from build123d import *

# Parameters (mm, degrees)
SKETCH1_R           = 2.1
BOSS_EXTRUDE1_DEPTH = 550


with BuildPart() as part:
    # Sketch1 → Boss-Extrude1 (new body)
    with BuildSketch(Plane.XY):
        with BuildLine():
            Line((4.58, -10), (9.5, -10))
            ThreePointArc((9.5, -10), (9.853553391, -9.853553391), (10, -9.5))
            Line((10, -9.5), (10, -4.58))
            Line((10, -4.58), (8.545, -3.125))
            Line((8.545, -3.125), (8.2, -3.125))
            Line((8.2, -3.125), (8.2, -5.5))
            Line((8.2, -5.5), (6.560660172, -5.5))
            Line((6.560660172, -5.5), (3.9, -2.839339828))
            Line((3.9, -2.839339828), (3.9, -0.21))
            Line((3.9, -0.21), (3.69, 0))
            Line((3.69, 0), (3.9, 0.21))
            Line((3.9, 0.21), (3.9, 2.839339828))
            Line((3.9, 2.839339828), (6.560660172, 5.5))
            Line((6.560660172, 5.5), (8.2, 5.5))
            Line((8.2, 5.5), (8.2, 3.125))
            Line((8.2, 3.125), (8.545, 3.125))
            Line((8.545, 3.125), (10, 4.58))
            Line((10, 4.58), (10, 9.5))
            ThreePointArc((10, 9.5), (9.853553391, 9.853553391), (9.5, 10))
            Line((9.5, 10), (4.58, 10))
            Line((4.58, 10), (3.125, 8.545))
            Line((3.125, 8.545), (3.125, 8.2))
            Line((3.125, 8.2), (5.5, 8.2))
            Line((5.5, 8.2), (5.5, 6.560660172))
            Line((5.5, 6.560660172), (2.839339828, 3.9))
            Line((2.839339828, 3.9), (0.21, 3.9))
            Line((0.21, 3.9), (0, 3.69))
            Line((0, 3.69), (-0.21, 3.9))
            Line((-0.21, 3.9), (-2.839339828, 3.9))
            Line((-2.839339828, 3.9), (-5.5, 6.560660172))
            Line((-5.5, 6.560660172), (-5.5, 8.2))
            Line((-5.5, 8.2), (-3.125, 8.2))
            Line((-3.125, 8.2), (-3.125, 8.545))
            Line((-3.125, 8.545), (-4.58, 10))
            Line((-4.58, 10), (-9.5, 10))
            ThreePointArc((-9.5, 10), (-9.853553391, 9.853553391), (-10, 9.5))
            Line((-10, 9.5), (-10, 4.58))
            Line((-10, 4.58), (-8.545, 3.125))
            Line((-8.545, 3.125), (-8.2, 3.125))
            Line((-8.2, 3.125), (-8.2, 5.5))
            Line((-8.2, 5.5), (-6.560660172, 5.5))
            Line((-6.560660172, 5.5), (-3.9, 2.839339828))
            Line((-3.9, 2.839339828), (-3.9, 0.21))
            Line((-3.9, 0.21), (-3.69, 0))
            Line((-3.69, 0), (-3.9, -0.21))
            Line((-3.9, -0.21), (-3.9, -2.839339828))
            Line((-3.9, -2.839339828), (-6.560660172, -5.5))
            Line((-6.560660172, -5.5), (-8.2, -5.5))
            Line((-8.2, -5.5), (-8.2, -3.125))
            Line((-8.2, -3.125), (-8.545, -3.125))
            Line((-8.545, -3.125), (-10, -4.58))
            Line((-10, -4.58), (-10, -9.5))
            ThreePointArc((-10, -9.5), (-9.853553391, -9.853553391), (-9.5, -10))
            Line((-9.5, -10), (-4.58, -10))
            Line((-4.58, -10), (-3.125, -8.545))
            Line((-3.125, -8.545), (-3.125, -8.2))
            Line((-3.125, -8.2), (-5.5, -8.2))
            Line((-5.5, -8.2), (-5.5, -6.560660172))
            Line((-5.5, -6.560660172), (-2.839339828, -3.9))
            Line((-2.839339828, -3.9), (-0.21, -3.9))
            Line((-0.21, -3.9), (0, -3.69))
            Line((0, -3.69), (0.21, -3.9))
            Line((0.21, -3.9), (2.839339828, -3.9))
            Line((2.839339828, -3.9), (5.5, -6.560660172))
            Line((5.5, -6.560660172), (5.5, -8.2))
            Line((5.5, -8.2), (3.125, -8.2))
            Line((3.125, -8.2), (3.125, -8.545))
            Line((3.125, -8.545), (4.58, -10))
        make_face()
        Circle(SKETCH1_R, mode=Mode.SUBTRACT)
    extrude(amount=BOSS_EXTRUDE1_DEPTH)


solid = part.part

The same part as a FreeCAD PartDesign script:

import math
import FreeCAD as App
import Part
import Sketcher

doc = App.newDocument("Part")
params = doc.addObject("Spreadsheet::Sheet", "Params")
for row, (alias, value) in enumerate([
    ("sketch1_diameter", "4.2 mm"),
    ("sketch1_radius", "0.5 mm"),
    ("sketch1_width", "4.92 mm"),
    ("pad1_length", "550 mm"),
], start=1):
    params.set(f"A{row}", alias)
    params.set(f"B{row}", "=" + value)
    params.setAlias(f"B{row}", alias)

body = doc.addObject("PartDesign::Body", "Body")

# Sketch on XY plane
sketch1 = doc.addObject("Sketcher::SketchObject", "Sketch")
body.addObject(sketch1)
sketch1.AttachmentSupport = (doc.XY_Plane, [""])
sketch1.MapMode = "FlatFace"
sketch1.addGeometry([
    Part.LineSegment(App.Vector(4.58, -10, 0), App.Vector(9.5, -10, 0)),  # 0
    Part.ArcOfCircle(Part.Circle(App.Vector(9.5, -9.5, 0), App.Vector(0, 0, 1), 0.5), math.radians(-90), math.radians(0)),  # 1
    Part.LineSegment(App.Vector(10, -9.5, 0), App.Vector(10, -4.58, 0)),  # 2
    Part.LineSegment(App.Vector(10, -4.58, 0), App.Vector(8.545, -3.125, 0)),  # 3
    Part.LineSegment(App.Vector(8.545, -3.125, 0), App.Vector(8.2, -3.125, 0)),  # 4
    Part.LineSegment(App.Vector(8.2, -3.125, 0), App.Vector(8.2, -5.5, 0)),  # 5
    Part.LineSegment(App.Vector(8.2, -5.5, 0), App.Vector(6.56066, -5.5, 0)),  # 6
    Part.LineSegment(App.Vector(6.56066, -5.5, 0), App.Vector(3.9, -2.83934, 0)),  # 7
    Part.LineSegment(App.Vector(3.9, -2.83934, 0), App.Vector(3.9, -0.21, 0)),  # 8
    Part.LineSegment(App.Vector(3.9, -0.21, 0), App.Vector(3.69, 0, 0)),  # 9
    Part.LineSegment(App.Vector(3.69, 0, 0), App.Vector(3.9, 0.21, 0)),  # 10
    Part.LineSegment(App.Vector(3.9, 0.21, 0), App.Vector(3.9, 2.83934, 0)),  # 11
    Part.LineSegment(App.Vector(3.9, 2.83934, 0), App.Vector(6.56066, 5.5, 0)),  # 12
    Part.LineSegment(App.Vector(6.56066, 5.5, 0), App.Vector(8.2, 5.5, 0)),  # 13
    Part.LineSegment(App.Vector(8.2, 5.5, 0), App.Vector(8.2, 3.125, 0)),  # 14
    Part.LineSegment(App.Vector(8.2, 3.125, 0), App.Vector(8.545, 3.125, 0)),  # 15
    Part.LineSegment(App.Vector(8.545, 3.125, 0), App.Vector(10, 4.58, 0)),  # 16
    Part.LineSegment(App.Vector(10, 4.58, 0), App.Vector(10, 9.5, 0)),  # 17
    Part.ArcOfCircle(Part.Circle(App.Vector(9.5, 9.5, 0), App.Vector(0, 0, 1), 0.5), math.radians(0), math.radians(90)),  # 18
    Part.LineSegment(App.Vector(9.5, 10, 0), App.Vector(4.58, 10, 0)),  # 19
    Part.LineSegment(App.Vector(4.58, 10, 0), App.Vector(3.125, 8.545, 0)),  # 20
    Part.LineSegment(App.Vector(3.125, 8.545, 0), App.Vector(3.125, 8.2, 0)),  # 21
    Part.LineSegment(App.Vector(3.125, 8.2, 0), App.Vector(5.5, 8.2, 0)),  # 22
    Part.LineSegment(App.Vector(5.5, 8.2, 0), App.Vector(5.5, 6.56066, 0)),  # 23
    Part.LineSegment(App.Vector(5.5, 6.56066, 0), App.Vector(2.83934, 3.9, 0)),  # 24
    Part.LineSegment(App.Vector(2.83934, 3.9, 0), App.Vector(0.21, 3.9, 0)),  # 25
    Part.LineSegment(App.Vector(0.21, 3.9, 0), App.Vector(0, 3.69, 0)),  # 26
    Part.LineSegment(App.Vector(0, 3.69, 0), App.Vector(-0.21, 3.9, 0)),  # 27
    Part.LineSegment(App.Vector(-0.21, 3.9, 0), App.Vector(-2.83934, 3.9, 0)),  # 28
    Part.LineSegment(App.Vector(-2.83934, 3.9, 0), App.Vector(-5.5, 6.56066, 0)),  # 29
    Part.LineSegment(App.Vector(-5.5, 6.56066, 0), App.Vector(-5.5, 8.2, 0)),  # 30
    Part.LineSegment(App.Vector(-5.5, 8.2, 0), App.Vector(-3.125, 8.2, 0)),  # 31
    Part.LineSegment(App.Vector(-3.125, 8.2, 0), App.Vector(-3.125, 8.545, 0)),  # 32
    Part.LineSegment(App.Vector(-3.125, 8.545, 0), App.Vector(-4.58, 10, 0)),  # 33
    Part.LineSegment(App.Vector(-4.58, 10, 0), App.Vector(-9.5, 10, 0)),  # 34
    Part.ArcOfCircle(Part.Circle(App.Vector(-9.5, 9.5, 0), App.Vector(0, 0, 1), 0.5), math.radians(90), math.radians(180)),  # 35
    Part.LineSegment(App.Vector(-10, 9.5, 0), App.Vector(-10, 4.58, 0)),  # 36
    Part.LineSegment(App.Vector(-10, 4.58, 0), App.Vector(-8.545, 3.125, 0)),  # 37
    Part.LineSegment(App.Vector(-8.545, 3.125, 0), App.Vector(-8.2, 3.125, 0)),  # 38
    Part.LineSegment(App.Vector(-8.2, 3.125, 0), App.Vector(-8.2, 5.5, 0)),  # 39
    Part.LineSegment(App.Vector(-8.2, 5.5, 0), App.Vector(-6.56066, 5.5, 0)),  # 40
    Part.LineSegment(App.Vector(-6.56066, 5.5, 0), App.Vector(-3.9, 2.83934, 0)),  # 41
    Part.LineSegment(App.Vector(-3.9, 2.83934, 0), App.Vector(-3.9, 0.21, 0)),  # 42
    Part.LineSegment(App.Vector(-3.9, 0.21, 0), App.Vector(-3.69, 0, 0)),  # 43
    Part.LineSegment(App.Vector(-3.69, 0, 0), App.Vector(-3.9, -0.21, 0)),  # 44
    Part.LineSegment(App.Vector(-3.9, -0.21, 0), App.Vector(-3.9, -2.83934, 0)),  # 45
    Part.LineSegment(App.Vector(-3.9, -2.83934, 0), App.Vector(-6.56066, -5.5, 0)),  # 46
    Part.LineSegment(App.Vector(-6.56066, -5.5, 0), App.Vector(-8.2, -5.5, 0)),  # 47
    Part.LineSegment(App.Vector(-8.2, -5.5, 0), App.Vector(-8.2, -3.125, 0)),  # 48
    Part.LineSegment(App.Vector(-8.2, -3.125, 0), App.Vector(-8.545, -3.125, 0)),  # 49
    Part.LineSegment(App.Vector(-8.545, -3.125, 0), App.Vector(-10, -4.58, 0)),  # 50
    Part.LineSegment(App.Vector(-10, -4.58, 0), App.Vector(-10, -9.5, 0)),  # 51
    Part.ArcOfCircle(Part.Circle(App.Vector(-9.5, -9.5, 0), App.Vector(0, 0, 1), 0.5), math.radians(180), math.radians(270)),  # 52
    Part.LineSegment(App.Vector(-9.5, -10, 0), App.Vector(-4.58, -10, 0)),  # 53
    Part.LineSegment(App.Vector(-4.58, -10, 0), App.Vector(-3.125, -8.545, 0)),  # 54
    Part.LineSegment(App.Vector(-3.125, -8.545, 0), App.Vector(-3.125, -8.2, 0)),  # 55
    Part.LineSegment(App.Vector(-3.125, -8.2, 0), App.Vector(-5.5, -8.2, 0)),  # 56
    Part.LineSegment(App.Vector(-5.5, -8.2, 0), App.Vector(-5.5, -6.56066, 0)),  # 57
    Part.LineSegment(App.Vector(-5.5, -6.56066, 0), App.Vector(-2.83934, -3.9, 0)),  # 58
    Part.LineSegment(App.Vector(-2.83934, -3.9, 0), App.Vector(-0.21, -3.9, 0)),  # 59
    Part.LineSegment(App.Vector(-0.21, -3.9, 0), App.Vector(0, -3.69, 0)),  # 60
    Part.LineSegment(App.Vector(0, -3.69, 0), App.Vector(0.21, -3.9, 0)),  # 61
    Part.LineSegment(App.Vector(0.21, -3.9, 0), App.Vector(2.83934, -3.9, 0)),  # 62
    Part.LineSegment(App.Vector(2.83934, -3.9, 0), App.Vector(5.5, -6.56066, 0)),  # 63
    Part.LineSegment(App.Vector(5.5, -6.56066, 0), App.Vector(5.5, -8.2, 0)),  # 64
    Part.LineSegment(App.Vector(5.5, -8.2, 0), App.Vector(3.125, -8.2, 0)),  # 65
    Part.LineSegment(App.Vector(3.125, -8.2, 0), App.Vector(3.125, -8.545, 0)),  # 66
    Part.LineSegment(App.Vector(3.125, -8.545, 0), App.Vector(4.58, -10, 0)),  # 67
    Part.Circle(App.Vector(0, 0, 0), App.Vector(0, 0, 1), 2.1),  # 68
], False)
sketch1.addConstraint([
    Sketcher.Constraint("Tangent", 0, 2, 1, 1),
    Sketcher.Constraint("Tangent", 1, 2, 2, 1),
    Sketcher.Constraint("Coincident", 2, 2, 3, 1),
    Sketcher.Constraint("Coincident", 3, 2, 4, 1),
    Sketcher.Constraint("Coincident", 4, 2, 5, 1),
    Sketcher.Constraint("Coincident", 5, 2, 6, 1),
    Sketcher.Constraint("Coincident", 6, 2, 7, 1),
    Sketcher.Constraint("Coincident", 7, 2, 8, 1),
    Sketcher.Constraint("Coincident", 8, 2, 9, 1),
    Sketcher.Constraint("Coincident", 9, 2, 10, 1),
    Sketcher.Constraint("Coincident", 10, 2, 11, 1),
    Sketcher.Constraint("Coincident", 11, 2, 12, 1),
    Sketcher.Constraint("Coincident", 12, 2, 13, 1),
    Sketcher.Constraint("Coincident", 13, 2, 14, 1),
    Sketcher.Constraint("Coincident", 14, 2, 15, 1),
    Sketcher.Constraint("Coincident", 15, 2, 16, 1),
    Sketcher.Constraint("Coincident", 16, 2, 17, 1),
    Sketcher.Constraint("Tangent", 17, 2, 18, 1),
    Sketcher.Constraint("Tangent", 18, 2, 19, 1),
    Sketcher.Constraint("Coincident", 19, 2, 20, 1),
    Sketcher.Constraint("Coincident", 20, 2, 21, 1),
    Sketcher.Constraint("Coincident", 21, 2, 22, 1),
    Sketcher.Constraint("Coincident", 22, 2, 23, 1),
    Sketcher.Constraint("Coincident", 23, 2, 24, 1),
    Sketcher.Constraint("Coincident", 24, 2, 25, 1),
    Sketcher.Constraint("Coincident", 25, 2, 26, 1),
    Sketcher.Constraint("Coincident", 26, 2, 27, 1),
    Sketcher.Constraint("Coincident", 27, 2, 28, 1),
    Sketcher.Constraint("Coincident", 28, 2, 29, 1),
    Sketcher.Constraint("Coincident", 29, 2, 30, 1),
    Sketcher.Constraint("Coincident", 30, 2, 31, 1),
    Sketcher.Constraint("Coincident", 31, 2, 32, 1),
    Sketcher.Constraint("Coincident", 32, 2, 33, 1),
    Sketcher.Constraint("Coincident", 33, 2, 34, 1),
    Sketcher.Constraint("Tangent", 34, 2, 35, 1),
    Sketcher.Constraint("Tangent", 35, 2, 36, 1),
    Sketcher.Constraint("Coincident", 36, 2, 37, 1),
    Sketcher.Constraint("Coincident", 37, 2, 38, 1),
    Sketcher.Constraint("Coincident", 38, 2, 39, 1),
    Sketcher.Constraint("Coincident", 39, 2, 40, 1),
    Sketcher.Constraint("Coincident", 40, 2, 41, 1),
    Sketcher.Constraint("Coincident", 41, 2, 42, 1),
    Sketcher.Constraint("Coincident", 42, 2, 43, 1),
    Sketcher.Constraint("Coincident", 43, 2, 44, 1),
    Sketcher.Constraint("Coincident", 44, 2, 45, 1),
    Sketcher.Constraint("Coincident", 45, 2, 46, 1),
    Sketcher.Constraint("Coincident", 46, 2, 47, 1),
    Sketcher.Constraint("Coincident", 47, 2, 48, 1),
    Sketcher.Constraint("Coincident", 48, 2, 49, 1),
    Sketcher.Constraint("Coincident", 49, 2, 50, 1),
    Sketcher.Constraint("Coincident", 50, 2, 51, 1),
    Sketcher.Constraint("Tangent", 51, 2, 52, 1),
    Sketcher.Constraint("Tangent", 52, 2, 53, 1),
    Sketcher.Constraint("Coincident", 53, 2, 54, 1),
    Sketcher.Constraint("Coincident", 54, 2, 55, 1),
    Sketcher.Constraint("Coincident", 55, 2, 56, 1),
    Sketcher.Constraint("Coincident", 56, 2, 57, 1),
    Sketcher.Constraint("Coincident", 57, 2, 58, 1),
    Sketcher.Constraint("Coincident", 58, 2, 59, 1),
    Sketcher.Constraint("Coincident", 59, 2, 60, 1),
    Sketcher.Constraint("Coincident", 60, 2, 61, 1),
    Sketcher.Constraint("Coincident", 61, 2, 62, 1),
    Sketcher.Constraint("Coincident", 62, 2, 63, 1),
    Sketcher.Constraint("Coincident", 63, 2, 64, 1),
    Sketcher.Constraint("Coincident", 64, 2, 65, 1),
    Sketcher.Constraint("Coincident", 65, 2, 66, 1),
    Sketcher.Constraint("Coincident", 66, 2, 67, 1),
    Sketcher.Constraint("Coincident", 67, 2, 0, 1),
    Sketcher.Constraint("Horizontal", 0),
    Sketcher.Constraint("Vertical", 2),
    Sketcher.Constraint("Horizontal", 4),
    Sketcher.Constraint("Vertical", 5),
    Sketcher.Constraint("Horizontal", 6),
    Sketcher.Constraint("Vertical", 8),
    Sketcher.Constraint("Vertical", 11),
    Sketcher.Constraint("Horizontal", 13),
    Sketcher.Constraint("Vertical", 14),
    Sketcher.Constraint("Horizontal", 15),
    Sketcher.Constraint("Vertical", 17),
    Sketcher.Constraint("Horizontal", 19),
    Sketcher.Constraint("Vertical", 21),
    Sketcher.Constraint("Horizontal", 22),
    Sketcher.Constraint("Vertical", 23),
    Sketcher.Constraint("Horizontal", 25),
    Sketcher.Constraint("Horizontal", 28),
    Sketcher.Constraint("Vertical", 30),
    Sketcher.Constraint("Horizontal", 31),
    Sketcher.Constraint("Vertical", 32),
    Sketcher.Constraint("Horizontal", 34),
    Sketcher.Constraint("Vertical", 36),
    Sketcher.Constraint("Horizontal", 38),
    Sketcher.Constraint("Vertical", 39),
    Sketcher.Constraint("Horizontal", 40),
    Sketcher.Constraint("Vertical", 42),
    Sketcher.Constraint("Vertical", 45),
    Sketcher.Constraint("Horizontal", 47),
    Sketcher.Constraint("Vertical", 48),
    Sketcher.Constraint("Horizontal", 49),
    Sketcher.Constraint("Vertical", 51),
    Sketcher.Constraint("Horizontal", 53),
    Sketcher.Constraint("Vertical", 55),
    Sketcher.Constraint("Horizontal", 56),
    Sketcher.Constraint("Vertical", 57),
    Sketcher.Constraint("Horizontal", 59),
    Sketcher.Constraint("Horizontal", 62),
    Sketcher.Constraint("Vertical", 64),
    Sketcher.Constraint("Horizontal", 65),
    Sketcher.Constraint("Vertical", 66),
    Sketcher.Constraint("Coincident", 68, 3, -1, 1),
    Sketcher.Constraint("Equal", 1, 18),
    Sketcher.Constraint("Equal", 18, 35),
    Sketcher.Constraint("Equal", 35, 52),
    Sketcher.Constraint("Symmetric", 1, 3, 35, 3, -1, 1),
    Sketcher.Constraint("Symmetric", 18, 3, 52, 3, -1, 1),
    Sketcher.Constraint("Symmetric", 3, 2, 37, 2, -1, 1),
    Sketcher.Constraint("Symmetric", 5, 2, 39, 2, -1, 1),
    Sketcher.Constraint("Symmetric", 7, 2, 41, 2, -1, 1),
    Sketcher.Constraint("Symmetric", 9, 2, 43, 2, -1, 1),
    Sketcher.Constraint("Symmetric", 10, 2, 44, 2, -1, 1),
    Sketcher.Constraint("Symmetric", 12, 2, 46, 2, -1, 1),
    Sketcher.Constraint("Symmetric", 14, 2, 48, 2, -1, 1),
    Sketcher.Constraint("Symmetric", 20, 2, 54, 2, -1, 1),
    Sketcher.Constraint("Symmetric", 22, 2, 56, 2, -1, 1),
    Sketcher.Constraint("Symmetric", 24, 2, 58, 2, -1, 1),
    Sketcher.Constraint("Symmetric", 26, 2, 60, 2, -1, 1),
    Sketcher.Constraint("Symmetric", 27, 2, 61, 2, -1, 1),
    Sketcher.Constraint("Symmetric", 29, 2, 63, 2, -1, 1),
    Sketcher.Constraint("Symmetric", 31, 2, 65, 2, -1, 1),
    Sketcher.Constraint("Symmetric", 18, 3, 35, 3, -2),
    Sketcher.Constraint("Symmetric", 25, 2, 27, 2, -2),
    Sketcher.Constraint("Symmetric", 23, 2, 29, 2, -2),
    Sketcher.Constraint("Symmetric", 21, 2, 31, 2, -2),
    Sketcher.Constraint("Symmetric", 15, 2, 37, 2, -2),
    Sketcher.Constraint("Symmetric", 13, 2, 39, 2, -2),
    Sketcher.Constraint("Symmetric", 11, 2, 41, 2, -2),
    Sketcher.Constraint("PointOnObject", 9, 2, -1),
    Sketcher.Constraint("PointOnObject", 26, 2, -2),
    Sketcher.Constraint("Parallel", 3, 7),
    Sketcher.Constraint("Parallel", 7, 9),
    Sketcher.Constraint("Perpendicular", 9, 10),
    Sketcher.Constraint("Parallel", 10, 12),
    Sketcher.Constraint("Parallel", 12, 16),
    Sketcher.Constraint("Parallel", 16, 20),
    Sketcher.Constraint("Parallel", 20, 24),
    Sketcher.Constraint("Parallel", 24, 26),
    Sketcher.Constraint("Perpendicular", 26, 27),
    Sketcher.Constraint("Parallel", 27, 29),
    Sketcher.Constraint("Parallel", 29, 33),
    Sketcher.Constraint("Parallel", 33, 37),
    Sketcher.Constraint("Parallel", 37, 41),
    Sketcher.Constraint("Parallel", 41, 43),
    Sketcher.Constraint("Parallel", 44, 46),
    Sketcher.Constraint("Parallel", 46, 50),
    Sketcher.Constraint("Parallel", 50, 54),
    Sketcher.Constraint("Parallel", 54, 58),
    Sketcher.Constraint("Parallel", 58, 60),
    Sketcher.Constraint("Parallel", 61, 63),
    Sketcher.Constraint("Parallel", 63, 67),
    Sketcher.Constraint("Horizontal", 20, 2, 32, 2),
    Sketcher.Constraint("Horizontal", 2, 2, 50, 2),
    Sketcher.Constraint("Horizontal", 54, 2, 66, 2),
    Sketcher.Constraint("Equal", 53, 2),
    Sketcher.Constraint("Equal", 65, 5),
    Sketcher.Constraint("Equal", 62, 8),
    Sketcher.Constraint("Equal", 49, 21),
    Sketcher.Constraint("Equal", 47, 23),
    Sketcher.Constraint("Equal", 16, 20),
    Sketcher.Constraint("Equal", 12, 24),
    Sketcher.Constraint("Equal", 10, 26),
    Sketcher.Constraint("Diameter", 68, 4.2),
    Sketcher.Constraint("Radius", 1, 0.5),
    Sketcher.Constraint("DistanceY", 0, 2, -1, 1, 10.0),
    Sketcher.Constraint("DistanceX", 0, 1, 0, 2, 4.92),
    Sketcher.Constraint("DistanceX", -1, 1, 4, 2, 8.2),
    Sketcher.Constraint("DistanceY", 5, 2, -1, 1, 5.5),
    Sketcher.Constraint("DistanceX", -1, 1, 7, 2, 3.9),
    Sketcher.Constraint("DistanceX", 4, 2, 4, 1, 0.345),
    Sketcher.Constraint("DistanceY", 8, 2, -1, 1, 0.21),
    Sketcher.Constraint("DistanceX", 6, 2, 6, 1, 1.63934),
])
sketch1.setExpression("Constraints[169]", "Params.sketch1_diameter")
sketch1.setExpression("Constraints[170]", "Params.sketch1_radius")
sketch1.setExpression("Constraints[172]", "Params.sketch1_width")
pad1 = doc.addObject("PartDesign::Pad", "Pad")
body.addObject(pad1)
pad1.Profile = sketch1
pad1.setExpression("Length", "Params.pad1_length")

doc.recompute()
